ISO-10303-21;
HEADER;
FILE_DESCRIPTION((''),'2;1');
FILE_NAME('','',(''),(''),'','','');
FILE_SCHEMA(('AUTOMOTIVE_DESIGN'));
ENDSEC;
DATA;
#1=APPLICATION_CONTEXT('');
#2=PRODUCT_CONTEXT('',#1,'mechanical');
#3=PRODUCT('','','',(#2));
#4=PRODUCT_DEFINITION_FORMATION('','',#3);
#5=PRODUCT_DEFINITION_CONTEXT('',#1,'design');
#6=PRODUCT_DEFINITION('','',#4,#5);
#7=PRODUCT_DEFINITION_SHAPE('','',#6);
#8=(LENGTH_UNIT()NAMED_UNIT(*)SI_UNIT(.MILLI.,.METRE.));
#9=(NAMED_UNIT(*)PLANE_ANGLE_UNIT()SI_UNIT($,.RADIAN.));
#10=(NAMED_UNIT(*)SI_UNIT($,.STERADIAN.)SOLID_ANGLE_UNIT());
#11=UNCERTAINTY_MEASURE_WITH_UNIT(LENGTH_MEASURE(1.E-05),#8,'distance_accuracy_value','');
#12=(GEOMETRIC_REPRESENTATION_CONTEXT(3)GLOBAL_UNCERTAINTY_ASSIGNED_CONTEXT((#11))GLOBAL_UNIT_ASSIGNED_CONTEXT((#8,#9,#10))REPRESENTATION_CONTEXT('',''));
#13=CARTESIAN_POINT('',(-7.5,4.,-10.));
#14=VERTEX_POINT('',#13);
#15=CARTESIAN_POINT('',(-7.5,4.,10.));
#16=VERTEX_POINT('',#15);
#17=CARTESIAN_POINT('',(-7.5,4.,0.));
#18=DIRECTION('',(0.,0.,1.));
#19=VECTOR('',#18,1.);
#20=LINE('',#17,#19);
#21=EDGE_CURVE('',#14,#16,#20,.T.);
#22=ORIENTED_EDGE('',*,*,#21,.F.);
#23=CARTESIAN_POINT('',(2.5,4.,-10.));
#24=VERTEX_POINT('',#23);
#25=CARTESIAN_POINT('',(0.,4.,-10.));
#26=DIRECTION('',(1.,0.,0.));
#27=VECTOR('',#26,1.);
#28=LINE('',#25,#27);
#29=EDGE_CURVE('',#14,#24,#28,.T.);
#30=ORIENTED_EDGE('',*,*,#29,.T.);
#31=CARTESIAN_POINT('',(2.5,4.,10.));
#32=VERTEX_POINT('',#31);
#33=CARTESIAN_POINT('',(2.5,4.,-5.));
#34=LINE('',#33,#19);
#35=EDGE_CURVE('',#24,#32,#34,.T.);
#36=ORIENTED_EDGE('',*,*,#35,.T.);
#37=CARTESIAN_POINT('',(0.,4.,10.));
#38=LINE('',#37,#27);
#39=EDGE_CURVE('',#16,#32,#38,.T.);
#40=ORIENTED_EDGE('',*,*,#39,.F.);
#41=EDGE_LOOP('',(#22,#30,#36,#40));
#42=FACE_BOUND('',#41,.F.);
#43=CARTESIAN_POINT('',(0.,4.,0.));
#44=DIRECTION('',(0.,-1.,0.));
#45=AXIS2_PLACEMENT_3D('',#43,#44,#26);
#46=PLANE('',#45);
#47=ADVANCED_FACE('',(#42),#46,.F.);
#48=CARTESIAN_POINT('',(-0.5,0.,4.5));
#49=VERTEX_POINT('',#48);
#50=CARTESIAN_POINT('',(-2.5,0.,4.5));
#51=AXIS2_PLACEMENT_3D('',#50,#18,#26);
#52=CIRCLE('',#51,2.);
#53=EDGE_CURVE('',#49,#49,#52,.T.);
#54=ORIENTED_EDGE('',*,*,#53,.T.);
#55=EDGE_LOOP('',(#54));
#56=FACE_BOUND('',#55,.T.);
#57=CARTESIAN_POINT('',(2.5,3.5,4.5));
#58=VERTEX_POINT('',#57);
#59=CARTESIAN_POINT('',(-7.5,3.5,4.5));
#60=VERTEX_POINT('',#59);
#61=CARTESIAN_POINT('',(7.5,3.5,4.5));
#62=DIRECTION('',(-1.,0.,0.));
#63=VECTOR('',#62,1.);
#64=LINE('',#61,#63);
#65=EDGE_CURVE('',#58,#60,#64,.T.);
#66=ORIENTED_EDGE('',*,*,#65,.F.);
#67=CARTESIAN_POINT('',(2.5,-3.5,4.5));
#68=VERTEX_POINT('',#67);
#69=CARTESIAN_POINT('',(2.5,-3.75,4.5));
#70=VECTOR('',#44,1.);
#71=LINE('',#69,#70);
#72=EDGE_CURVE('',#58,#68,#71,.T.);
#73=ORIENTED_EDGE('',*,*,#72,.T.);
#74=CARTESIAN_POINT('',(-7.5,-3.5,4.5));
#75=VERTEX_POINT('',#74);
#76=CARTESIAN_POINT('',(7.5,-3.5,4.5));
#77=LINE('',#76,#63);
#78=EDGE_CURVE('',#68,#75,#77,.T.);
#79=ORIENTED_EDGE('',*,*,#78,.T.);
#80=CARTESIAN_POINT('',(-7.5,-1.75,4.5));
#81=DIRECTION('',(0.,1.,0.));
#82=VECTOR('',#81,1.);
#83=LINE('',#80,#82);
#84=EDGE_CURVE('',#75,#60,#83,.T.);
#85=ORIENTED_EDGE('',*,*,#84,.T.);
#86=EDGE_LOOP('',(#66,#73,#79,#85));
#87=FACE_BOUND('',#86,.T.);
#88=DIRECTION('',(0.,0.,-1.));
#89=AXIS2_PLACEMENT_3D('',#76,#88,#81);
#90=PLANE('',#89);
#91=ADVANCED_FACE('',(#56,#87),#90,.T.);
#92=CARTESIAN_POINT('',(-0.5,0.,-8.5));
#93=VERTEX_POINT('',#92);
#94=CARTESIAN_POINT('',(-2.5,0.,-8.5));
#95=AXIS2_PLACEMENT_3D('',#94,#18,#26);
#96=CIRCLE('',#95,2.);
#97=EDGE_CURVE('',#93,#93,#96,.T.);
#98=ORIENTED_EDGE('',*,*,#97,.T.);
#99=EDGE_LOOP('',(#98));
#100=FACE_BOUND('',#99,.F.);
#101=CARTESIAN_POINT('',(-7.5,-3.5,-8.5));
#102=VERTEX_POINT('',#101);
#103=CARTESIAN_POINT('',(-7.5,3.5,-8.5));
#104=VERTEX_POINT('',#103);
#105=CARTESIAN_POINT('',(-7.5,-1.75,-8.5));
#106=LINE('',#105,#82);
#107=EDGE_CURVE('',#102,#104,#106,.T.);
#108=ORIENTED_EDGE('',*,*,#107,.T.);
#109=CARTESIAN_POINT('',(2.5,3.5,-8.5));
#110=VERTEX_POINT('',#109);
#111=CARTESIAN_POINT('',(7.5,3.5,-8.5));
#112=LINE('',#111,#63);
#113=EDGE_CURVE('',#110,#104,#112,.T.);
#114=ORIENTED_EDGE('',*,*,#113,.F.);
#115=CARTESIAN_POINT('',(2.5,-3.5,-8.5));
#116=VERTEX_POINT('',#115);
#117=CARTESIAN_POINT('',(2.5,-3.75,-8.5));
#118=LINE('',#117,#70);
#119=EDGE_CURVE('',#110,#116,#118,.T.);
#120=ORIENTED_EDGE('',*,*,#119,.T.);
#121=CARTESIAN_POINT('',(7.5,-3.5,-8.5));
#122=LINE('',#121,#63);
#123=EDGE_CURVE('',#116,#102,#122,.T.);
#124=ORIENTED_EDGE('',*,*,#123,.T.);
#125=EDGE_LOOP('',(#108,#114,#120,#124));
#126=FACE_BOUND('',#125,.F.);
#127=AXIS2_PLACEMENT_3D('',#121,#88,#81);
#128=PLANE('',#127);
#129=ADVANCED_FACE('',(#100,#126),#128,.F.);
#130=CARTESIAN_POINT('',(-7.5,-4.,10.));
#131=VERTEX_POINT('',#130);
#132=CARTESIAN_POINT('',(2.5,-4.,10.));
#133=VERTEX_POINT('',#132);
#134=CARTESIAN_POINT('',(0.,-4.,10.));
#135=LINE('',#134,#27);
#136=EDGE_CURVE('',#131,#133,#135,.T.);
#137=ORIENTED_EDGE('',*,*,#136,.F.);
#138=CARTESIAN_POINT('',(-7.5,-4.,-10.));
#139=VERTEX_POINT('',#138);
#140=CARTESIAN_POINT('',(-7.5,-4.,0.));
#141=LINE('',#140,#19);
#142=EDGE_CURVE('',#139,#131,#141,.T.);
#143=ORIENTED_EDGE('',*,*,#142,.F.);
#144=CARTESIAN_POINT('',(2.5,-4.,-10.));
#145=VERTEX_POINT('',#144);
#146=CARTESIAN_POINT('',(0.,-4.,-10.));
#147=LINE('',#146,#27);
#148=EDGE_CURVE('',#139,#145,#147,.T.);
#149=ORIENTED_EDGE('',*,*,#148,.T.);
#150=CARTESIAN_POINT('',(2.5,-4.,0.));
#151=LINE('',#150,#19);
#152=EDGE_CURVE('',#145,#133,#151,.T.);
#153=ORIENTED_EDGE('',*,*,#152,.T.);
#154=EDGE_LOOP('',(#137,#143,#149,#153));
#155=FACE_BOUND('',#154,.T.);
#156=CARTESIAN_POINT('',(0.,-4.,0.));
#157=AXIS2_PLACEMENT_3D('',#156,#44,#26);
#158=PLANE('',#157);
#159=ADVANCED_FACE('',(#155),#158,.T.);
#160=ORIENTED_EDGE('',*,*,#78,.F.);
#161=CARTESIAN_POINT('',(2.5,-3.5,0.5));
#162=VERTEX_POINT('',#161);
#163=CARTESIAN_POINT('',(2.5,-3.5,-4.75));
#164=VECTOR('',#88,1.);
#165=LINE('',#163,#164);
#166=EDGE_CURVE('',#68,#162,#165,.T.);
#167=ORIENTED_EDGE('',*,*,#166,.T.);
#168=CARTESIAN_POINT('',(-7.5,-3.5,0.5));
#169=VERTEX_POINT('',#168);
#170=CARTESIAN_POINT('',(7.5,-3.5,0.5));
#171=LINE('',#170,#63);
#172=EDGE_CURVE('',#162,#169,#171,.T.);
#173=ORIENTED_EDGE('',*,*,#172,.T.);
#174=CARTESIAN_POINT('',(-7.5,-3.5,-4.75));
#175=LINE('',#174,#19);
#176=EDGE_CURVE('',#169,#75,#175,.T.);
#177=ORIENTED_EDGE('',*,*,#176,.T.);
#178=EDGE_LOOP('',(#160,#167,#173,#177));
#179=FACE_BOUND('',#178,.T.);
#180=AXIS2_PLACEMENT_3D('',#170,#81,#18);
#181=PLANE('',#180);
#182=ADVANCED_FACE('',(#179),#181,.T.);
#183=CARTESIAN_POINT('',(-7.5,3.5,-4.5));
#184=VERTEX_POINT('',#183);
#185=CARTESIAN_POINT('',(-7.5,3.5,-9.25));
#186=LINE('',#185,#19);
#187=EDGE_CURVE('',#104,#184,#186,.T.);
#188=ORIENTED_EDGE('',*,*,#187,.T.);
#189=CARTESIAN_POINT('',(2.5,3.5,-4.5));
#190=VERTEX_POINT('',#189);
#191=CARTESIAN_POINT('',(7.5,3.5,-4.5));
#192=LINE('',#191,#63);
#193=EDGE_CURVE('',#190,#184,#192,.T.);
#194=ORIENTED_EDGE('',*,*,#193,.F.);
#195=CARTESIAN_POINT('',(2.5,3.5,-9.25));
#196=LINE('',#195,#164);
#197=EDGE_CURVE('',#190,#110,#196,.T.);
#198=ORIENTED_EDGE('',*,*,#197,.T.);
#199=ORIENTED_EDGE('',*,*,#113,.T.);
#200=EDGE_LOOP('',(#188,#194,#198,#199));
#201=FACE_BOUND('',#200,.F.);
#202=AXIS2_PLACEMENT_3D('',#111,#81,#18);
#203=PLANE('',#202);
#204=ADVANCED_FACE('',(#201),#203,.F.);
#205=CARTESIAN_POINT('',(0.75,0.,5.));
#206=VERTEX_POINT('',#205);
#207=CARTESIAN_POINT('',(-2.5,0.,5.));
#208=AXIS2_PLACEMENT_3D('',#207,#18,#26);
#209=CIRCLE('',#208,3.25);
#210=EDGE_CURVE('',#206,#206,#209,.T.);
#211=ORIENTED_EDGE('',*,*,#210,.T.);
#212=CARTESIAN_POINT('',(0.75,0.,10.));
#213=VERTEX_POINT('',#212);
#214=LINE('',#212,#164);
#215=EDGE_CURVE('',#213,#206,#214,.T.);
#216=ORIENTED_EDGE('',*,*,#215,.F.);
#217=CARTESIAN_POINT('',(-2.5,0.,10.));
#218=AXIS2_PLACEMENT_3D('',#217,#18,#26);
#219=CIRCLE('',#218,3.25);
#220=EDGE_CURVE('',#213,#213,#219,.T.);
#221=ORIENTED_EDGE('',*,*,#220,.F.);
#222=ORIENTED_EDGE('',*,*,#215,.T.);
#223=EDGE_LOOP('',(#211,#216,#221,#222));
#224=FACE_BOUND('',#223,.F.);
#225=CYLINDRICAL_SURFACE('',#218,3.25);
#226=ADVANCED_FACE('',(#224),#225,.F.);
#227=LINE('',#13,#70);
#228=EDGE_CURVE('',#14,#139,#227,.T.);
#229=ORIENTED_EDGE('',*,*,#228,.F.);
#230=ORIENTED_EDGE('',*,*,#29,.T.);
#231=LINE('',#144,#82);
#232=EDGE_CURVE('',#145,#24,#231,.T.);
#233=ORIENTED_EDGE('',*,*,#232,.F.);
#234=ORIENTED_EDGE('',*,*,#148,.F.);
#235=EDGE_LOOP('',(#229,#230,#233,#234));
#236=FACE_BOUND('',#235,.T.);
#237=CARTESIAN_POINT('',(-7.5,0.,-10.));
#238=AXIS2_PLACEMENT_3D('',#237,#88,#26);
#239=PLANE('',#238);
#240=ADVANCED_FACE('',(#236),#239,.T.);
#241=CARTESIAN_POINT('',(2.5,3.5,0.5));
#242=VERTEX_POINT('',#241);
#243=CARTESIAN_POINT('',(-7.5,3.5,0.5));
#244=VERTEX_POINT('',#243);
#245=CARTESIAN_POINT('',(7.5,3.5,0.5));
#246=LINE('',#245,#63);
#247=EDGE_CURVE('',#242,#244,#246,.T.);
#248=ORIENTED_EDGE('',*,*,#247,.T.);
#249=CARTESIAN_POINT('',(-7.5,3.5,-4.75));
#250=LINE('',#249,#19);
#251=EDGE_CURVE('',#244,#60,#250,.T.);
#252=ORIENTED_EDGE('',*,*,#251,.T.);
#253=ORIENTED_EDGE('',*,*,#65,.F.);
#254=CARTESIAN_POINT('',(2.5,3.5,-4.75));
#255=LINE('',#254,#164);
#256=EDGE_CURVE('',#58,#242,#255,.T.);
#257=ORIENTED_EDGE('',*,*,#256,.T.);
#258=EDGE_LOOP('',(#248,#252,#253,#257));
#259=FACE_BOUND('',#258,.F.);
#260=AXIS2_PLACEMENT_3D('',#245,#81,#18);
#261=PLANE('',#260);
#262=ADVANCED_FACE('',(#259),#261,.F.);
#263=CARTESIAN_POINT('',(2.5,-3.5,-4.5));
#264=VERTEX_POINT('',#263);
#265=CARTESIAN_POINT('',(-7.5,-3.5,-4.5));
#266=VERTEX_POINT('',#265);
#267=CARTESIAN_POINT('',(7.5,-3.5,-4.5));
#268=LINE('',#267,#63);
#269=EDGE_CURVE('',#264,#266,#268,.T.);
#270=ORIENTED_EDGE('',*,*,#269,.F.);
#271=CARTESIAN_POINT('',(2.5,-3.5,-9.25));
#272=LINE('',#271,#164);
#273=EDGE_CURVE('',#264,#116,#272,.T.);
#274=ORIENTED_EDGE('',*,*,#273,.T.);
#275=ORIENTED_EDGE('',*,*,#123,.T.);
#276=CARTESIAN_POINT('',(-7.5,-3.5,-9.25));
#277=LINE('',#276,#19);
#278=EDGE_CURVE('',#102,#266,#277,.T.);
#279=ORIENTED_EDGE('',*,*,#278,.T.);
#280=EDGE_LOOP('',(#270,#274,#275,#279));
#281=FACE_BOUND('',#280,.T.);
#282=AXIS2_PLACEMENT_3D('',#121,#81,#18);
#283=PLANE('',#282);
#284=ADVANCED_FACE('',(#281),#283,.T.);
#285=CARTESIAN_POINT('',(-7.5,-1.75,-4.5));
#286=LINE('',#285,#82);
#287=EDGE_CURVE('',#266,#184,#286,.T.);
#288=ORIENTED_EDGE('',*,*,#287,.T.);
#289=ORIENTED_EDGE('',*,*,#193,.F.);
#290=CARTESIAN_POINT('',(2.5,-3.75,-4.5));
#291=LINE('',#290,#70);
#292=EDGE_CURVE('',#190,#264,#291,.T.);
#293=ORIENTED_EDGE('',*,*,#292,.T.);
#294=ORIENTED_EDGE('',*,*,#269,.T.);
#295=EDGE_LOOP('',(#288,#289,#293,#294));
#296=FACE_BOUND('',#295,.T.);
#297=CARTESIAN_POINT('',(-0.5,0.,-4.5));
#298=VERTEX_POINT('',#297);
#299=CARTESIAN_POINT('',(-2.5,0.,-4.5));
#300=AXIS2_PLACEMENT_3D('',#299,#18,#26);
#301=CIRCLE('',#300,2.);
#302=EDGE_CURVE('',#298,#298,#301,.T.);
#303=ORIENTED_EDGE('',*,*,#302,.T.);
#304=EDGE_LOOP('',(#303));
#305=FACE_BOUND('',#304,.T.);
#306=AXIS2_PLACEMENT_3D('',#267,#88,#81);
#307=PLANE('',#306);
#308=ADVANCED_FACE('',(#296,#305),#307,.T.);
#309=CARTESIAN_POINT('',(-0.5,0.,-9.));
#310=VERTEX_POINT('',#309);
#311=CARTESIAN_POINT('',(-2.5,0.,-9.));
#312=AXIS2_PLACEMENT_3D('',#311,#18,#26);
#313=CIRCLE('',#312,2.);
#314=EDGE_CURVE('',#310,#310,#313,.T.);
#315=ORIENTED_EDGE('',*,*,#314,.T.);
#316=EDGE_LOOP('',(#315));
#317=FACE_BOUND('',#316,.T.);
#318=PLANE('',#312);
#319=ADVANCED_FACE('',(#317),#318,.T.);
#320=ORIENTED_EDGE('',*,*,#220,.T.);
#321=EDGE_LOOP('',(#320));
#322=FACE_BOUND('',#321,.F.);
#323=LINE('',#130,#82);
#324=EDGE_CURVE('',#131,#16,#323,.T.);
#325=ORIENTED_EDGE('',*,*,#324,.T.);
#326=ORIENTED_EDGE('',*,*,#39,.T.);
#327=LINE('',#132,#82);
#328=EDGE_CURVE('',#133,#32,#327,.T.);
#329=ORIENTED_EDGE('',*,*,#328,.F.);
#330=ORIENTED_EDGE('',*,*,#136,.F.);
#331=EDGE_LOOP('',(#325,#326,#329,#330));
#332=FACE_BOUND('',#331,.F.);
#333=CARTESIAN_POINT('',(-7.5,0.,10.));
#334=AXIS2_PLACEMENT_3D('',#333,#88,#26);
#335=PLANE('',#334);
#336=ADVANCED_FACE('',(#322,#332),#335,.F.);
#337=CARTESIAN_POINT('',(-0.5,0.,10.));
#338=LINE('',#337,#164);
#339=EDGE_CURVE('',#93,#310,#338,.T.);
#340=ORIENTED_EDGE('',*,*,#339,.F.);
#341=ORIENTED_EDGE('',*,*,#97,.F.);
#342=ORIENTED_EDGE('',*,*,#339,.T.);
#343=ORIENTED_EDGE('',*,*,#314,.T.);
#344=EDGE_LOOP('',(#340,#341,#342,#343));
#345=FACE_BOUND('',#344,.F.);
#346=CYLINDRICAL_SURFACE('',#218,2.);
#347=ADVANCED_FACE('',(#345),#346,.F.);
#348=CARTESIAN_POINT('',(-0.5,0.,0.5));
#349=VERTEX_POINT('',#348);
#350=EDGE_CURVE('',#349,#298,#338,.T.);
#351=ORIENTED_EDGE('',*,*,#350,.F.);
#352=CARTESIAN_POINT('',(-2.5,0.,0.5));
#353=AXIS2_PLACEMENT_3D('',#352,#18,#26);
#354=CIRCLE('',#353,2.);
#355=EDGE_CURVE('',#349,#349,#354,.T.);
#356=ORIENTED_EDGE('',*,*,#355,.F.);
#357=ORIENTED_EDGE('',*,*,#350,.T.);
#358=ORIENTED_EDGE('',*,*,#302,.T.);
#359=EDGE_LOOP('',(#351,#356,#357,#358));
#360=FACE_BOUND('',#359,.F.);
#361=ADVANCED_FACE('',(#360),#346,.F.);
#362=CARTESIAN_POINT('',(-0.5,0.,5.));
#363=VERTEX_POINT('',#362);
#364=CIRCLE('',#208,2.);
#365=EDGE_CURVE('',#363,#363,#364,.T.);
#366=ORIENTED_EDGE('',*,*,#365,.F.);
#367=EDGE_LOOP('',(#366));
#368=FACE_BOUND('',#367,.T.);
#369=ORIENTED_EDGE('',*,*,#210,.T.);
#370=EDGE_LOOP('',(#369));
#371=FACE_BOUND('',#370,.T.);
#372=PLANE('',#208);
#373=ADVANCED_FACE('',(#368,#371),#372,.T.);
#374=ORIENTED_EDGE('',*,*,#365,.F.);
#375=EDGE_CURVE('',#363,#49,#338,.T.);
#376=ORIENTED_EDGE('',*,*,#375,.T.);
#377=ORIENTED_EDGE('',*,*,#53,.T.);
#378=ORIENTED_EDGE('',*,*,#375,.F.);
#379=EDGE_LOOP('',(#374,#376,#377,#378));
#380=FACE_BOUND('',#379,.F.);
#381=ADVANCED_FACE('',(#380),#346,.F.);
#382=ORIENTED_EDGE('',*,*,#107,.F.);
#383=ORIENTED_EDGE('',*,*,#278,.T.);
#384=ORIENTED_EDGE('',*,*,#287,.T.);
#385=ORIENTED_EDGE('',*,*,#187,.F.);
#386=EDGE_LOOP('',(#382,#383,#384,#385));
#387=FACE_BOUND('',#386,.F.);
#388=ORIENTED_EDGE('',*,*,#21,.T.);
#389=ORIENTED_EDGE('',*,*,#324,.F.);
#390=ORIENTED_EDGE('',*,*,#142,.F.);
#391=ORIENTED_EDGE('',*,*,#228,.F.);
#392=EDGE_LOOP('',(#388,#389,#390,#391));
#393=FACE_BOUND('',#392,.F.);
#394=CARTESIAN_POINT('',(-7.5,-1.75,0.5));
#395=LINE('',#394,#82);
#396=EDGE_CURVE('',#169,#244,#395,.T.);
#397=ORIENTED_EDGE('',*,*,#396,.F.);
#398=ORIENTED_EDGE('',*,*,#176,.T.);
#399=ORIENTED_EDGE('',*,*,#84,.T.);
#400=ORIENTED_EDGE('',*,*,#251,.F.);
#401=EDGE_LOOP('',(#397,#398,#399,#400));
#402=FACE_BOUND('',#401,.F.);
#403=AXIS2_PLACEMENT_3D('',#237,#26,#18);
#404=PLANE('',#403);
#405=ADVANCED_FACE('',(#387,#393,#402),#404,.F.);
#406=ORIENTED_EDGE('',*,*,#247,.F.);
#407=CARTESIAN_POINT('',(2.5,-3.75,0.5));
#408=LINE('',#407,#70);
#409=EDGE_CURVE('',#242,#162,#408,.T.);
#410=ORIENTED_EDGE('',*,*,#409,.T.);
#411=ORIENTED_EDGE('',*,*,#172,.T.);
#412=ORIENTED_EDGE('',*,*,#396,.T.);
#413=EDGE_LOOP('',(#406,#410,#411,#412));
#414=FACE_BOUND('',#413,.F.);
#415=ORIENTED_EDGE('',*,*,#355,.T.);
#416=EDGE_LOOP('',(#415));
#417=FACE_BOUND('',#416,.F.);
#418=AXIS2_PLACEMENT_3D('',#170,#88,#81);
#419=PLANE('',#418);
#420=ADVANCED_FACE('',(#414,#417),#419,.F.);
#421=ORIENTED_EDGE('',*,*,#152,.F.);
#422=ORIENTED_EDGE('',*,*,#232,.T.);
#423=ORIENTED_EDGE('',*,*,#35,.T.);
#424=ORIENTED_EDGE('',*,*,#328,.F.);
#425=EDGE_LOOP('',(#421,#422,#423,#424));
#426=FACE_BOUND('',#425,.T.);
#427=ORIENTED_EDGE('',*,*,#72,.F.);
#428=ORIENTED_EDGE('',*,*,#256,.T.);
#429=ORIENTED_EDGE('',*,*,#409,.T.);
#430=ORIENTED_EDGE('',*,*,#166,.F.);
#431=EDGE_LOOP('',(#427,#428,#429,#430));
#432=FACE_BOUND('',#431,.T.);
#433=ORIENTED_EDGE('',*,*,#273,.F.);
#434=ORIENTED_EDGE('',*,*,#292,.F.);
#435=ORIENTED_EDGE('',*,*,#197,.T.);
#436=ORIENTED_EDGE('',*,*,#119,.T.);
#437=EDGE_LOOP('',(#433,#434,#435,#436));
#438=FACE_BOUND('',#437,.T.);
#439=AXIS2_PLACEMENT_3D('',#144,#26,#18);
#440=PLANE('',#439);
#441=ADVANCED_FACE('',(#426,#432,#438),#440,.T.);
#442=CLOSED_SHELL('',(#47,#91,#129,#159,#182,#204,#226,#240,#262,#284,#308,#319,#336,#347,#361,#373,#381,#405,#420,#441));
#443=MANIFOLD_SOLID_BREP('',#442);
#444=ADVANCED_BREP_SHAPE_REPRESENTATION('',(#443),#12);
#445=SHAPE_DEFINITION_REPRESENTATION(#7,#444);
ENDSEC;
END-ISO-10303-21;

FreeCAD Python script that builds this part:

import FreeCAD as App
import Part
import Sketcher
from FreeCAD import Vector
Q = App.Units.Quantity


def add_polygon(sketch, points):
    """Adds a closed chain of lines whose ends are joined by coincident constraints."""
    first, n = sketch.GeometryCount, len(points)
    for a, b in zip(points, points[1:] + points[:1]):
        sketch.addGeometry(Part.LineSegment(App.Vector(*a, 0), App.Vector(*b, 0)), False)
    for i in range(n):
        sketch.addConstraint(Sketcher.Constraint("Coincident", first + i, 2, first + (i + 1) % n, 1))

doc = App.newDocument("Part")
body = doc.addObject("PartDesign::Body", "Body")

# Sketch on XZ plane
sketch1 = body.newObject("Sketcher::SketchObject", "Sketch")
sketch1.AttachmentSupport = (doc.getObject("XZ_Plane"), [""])
sketch1.MapMode = "FlatFace"
add_polygon(sketch1, [(-8, 10), (-8, -10), (8, -10), (8, 10)])  # lines 0-3
sketch1.addConstraint([
    Sketcher.Constraint("Vertical", 0),
    Sketcher.Constraint("Horizontal", 1),
    Sketcher.Constraint("Vertical", 2),
    Sketcher.Constraint("Horizontal", 3),
    Sketcher.Constraint("Symmetric", 0, 2, 2, 2, -1, 1),
    Sketcher.Constraint("DistanceX", 1, 1, 1, 2, Q("15 mm")),
    Sketcher.Constraint("DistanceY", 0, 2, 0, 1, Q("20 mm")),
])
pad1 = body.newObject("PartDesign::Pad", "Pad")
pad1.Profile = sketch1
pad1.Length = 8
pad1.Midplane = True

# Sketch on XY plane
sketch2 = body.newObject("Sketcher::SketchObject", "Sketch001")
sketch2.AttachmentSupport = (doc.getObject("XY_Plane"), [""])
sketch2.MapMode = "FlatFace"
sketch2.AttachmentOffset = App.Placement(Vector(0, 0, 10), App.Rotation())
sketch2.addGeometry(Part.Circle(Vector(-2.5, 0, 0), Vector(0, 0, 1), 2), False)
sketch2.addConstraint([
    Sketcher.Constraint("PointOnObject", 0, 3, -1),
    Sketcher.Constraint("Diameter", 0, Q("4 mm")),
    Sketcher.Constraint("DistanceX", 0, 3, -1, 1, Q("2.5 mm")),
])
pocket1 = body.newObject("PartDesign::Pocket", "Pocket")
pocket1.Profile = sketch2
pocket1.Length = 19

# Sketch on XY plane
sketch3 = body.newObject("Sketcher::SketchObject", "Sketch002")
sketch3.AttachmentSupport = (doc.getObject("XY_Plane"), [""])
sketch3.MapMode = "FlatFace"
sketch3.AttachmentOffset = App.Placement(Vector(0, 0, 10), App.Rotation())
sketch3.addGeometry([
    Part.Circle(Vector(-2.5, 0, 0), Vector(0, 0, 1), 3.2),
    Part.Circle(Vector(-2.5, 0, 0), Vector(0, 0, 1), 2),
], False)
sketch3.addConstraint([
    Sketcher.Constraint("Coincident", 1, 3, 0, 3),
    Sketcher.Constraint("PointOnObject", 0, 3, -1),
    Sketcher.Constraint("Diameter", 1, Q("4 mm")),
    Sketcher.Constraint("Diameter", 0, Q("6.5 mm")),
    Sketcher.Constraint("DistanceX", 0, 3, -1, 1, Q("2.5 mm")),
])
pocket2 = body.newObject("PartDesign::Pocket", "Pocket001")
pocket2.Profile = sketch3
pocket2.Length = 5

# Sketch on YZ plane
sketch4 = body.newObject("Sketcher::SketchObject", "Sketch003")
sketch4.AttachmentSupport = (doc.getObject("YZ_Plane"), [""])
sketch4.MapMode = "FlatFace"
sketch4.AttachmentOffset = App.Placement(Vector(0, 0, 7.5), App.Rotation())
add_polygon(sketch4, [(-3.5, 4.5), (-3.5, 0.5), (3.5, 0.5), (3.5, 4.5)])  # lines 0-3
add_polygon(sketch4, [(-3.5, -4.5), (-3.5, -8.5), (3.5, -8.5), (3.5, -4.5)])  # lines 4-7
sketch4.addConstraint([
    Sketcher.Constraint("Vertical", 0),
    Sketcher.Constraint("Horizontal", 1),
    Sketcher.Constraint("Vertical", 2),
    Sketcher.Constraint("Horizontal", 3),
    Sketcher.Constraint("Vertical", 4),
    Sketcher.Constraint("Horizontal", 5),
    Sketcher.Constraint("Vertical", 6),
    Sketcher.Constraint("Horizontal", 7),
    Sketcher.Constraint("Symmetric", 3, 2, 6, 2, -1, 1),
    Sketcher.Constraint("Vertical", 3, 2, 4, 2),
    Sketcher.Constraint("Vertical", 2, 2, 5, 2),
    Sketcher.Constraint("Equal", 2, 4),
    Sketcher.Constraint("DistanceX", 1, 1, 1, 2, Q("7 mm")),
    Sketcher.Constraint("DistanceY", 0, 2, 0, 1, Q("4 mm")),
    Sketcher.Constraint("DistanceY", 4, 2, 0, 2, Q("9 mm")),
])
pocket3 = body.newObject("PartDesign::Pocket", "Pocket002")
pocket3.Profile = sketch4
pocket3.Type = "ThroughAll"

# Sketch on XZ plane
sketch5 = body.newObject("Sketcher::SketchObject", "Sketch004")
sketch5.AttachmentSupport = (doc.getObject("XZ_Plane"), [""])
sketch5.MapMode = "FlatFace"
sketch5.AttachmentOffset = App.Placement(Vector(0, 0, 4), App.Rotation())
add_polygon(sketch5, [(2, 10), (2, -10), (8, -10), (8, 10)])  # lines 0-3
sketch5.addConstraint([
    Sketcher.Constraint("Vertical", 0),
    Sketcher.Constraint("Horizontal", 1),
    Sketcher.Constraint("Vertical", 2),
    Sketcher.Constraint("Horizontal", 3),
    Sketcher.Constraint("DistanceX", 1, 1, 1, 2, Q("5 mm")),
    Sketcher.Constraint("DistanceY", 0, 2, 0, 1, Q("20 mm")),
    Sketcher.Constraint("DistanceY", 0, 2, -1, 1, Q("10 mm")),
    Sketcher.Constraint("DistanceX", -1, 1, 0, 2, Q("2.5 mm")),
])
pocket4 = body.newObject("PartDesign::Pocket", "Pocket003")
pocket4.Profile = sketch5
pocket4.Type = "ThroughAll"

doc.recompute()
